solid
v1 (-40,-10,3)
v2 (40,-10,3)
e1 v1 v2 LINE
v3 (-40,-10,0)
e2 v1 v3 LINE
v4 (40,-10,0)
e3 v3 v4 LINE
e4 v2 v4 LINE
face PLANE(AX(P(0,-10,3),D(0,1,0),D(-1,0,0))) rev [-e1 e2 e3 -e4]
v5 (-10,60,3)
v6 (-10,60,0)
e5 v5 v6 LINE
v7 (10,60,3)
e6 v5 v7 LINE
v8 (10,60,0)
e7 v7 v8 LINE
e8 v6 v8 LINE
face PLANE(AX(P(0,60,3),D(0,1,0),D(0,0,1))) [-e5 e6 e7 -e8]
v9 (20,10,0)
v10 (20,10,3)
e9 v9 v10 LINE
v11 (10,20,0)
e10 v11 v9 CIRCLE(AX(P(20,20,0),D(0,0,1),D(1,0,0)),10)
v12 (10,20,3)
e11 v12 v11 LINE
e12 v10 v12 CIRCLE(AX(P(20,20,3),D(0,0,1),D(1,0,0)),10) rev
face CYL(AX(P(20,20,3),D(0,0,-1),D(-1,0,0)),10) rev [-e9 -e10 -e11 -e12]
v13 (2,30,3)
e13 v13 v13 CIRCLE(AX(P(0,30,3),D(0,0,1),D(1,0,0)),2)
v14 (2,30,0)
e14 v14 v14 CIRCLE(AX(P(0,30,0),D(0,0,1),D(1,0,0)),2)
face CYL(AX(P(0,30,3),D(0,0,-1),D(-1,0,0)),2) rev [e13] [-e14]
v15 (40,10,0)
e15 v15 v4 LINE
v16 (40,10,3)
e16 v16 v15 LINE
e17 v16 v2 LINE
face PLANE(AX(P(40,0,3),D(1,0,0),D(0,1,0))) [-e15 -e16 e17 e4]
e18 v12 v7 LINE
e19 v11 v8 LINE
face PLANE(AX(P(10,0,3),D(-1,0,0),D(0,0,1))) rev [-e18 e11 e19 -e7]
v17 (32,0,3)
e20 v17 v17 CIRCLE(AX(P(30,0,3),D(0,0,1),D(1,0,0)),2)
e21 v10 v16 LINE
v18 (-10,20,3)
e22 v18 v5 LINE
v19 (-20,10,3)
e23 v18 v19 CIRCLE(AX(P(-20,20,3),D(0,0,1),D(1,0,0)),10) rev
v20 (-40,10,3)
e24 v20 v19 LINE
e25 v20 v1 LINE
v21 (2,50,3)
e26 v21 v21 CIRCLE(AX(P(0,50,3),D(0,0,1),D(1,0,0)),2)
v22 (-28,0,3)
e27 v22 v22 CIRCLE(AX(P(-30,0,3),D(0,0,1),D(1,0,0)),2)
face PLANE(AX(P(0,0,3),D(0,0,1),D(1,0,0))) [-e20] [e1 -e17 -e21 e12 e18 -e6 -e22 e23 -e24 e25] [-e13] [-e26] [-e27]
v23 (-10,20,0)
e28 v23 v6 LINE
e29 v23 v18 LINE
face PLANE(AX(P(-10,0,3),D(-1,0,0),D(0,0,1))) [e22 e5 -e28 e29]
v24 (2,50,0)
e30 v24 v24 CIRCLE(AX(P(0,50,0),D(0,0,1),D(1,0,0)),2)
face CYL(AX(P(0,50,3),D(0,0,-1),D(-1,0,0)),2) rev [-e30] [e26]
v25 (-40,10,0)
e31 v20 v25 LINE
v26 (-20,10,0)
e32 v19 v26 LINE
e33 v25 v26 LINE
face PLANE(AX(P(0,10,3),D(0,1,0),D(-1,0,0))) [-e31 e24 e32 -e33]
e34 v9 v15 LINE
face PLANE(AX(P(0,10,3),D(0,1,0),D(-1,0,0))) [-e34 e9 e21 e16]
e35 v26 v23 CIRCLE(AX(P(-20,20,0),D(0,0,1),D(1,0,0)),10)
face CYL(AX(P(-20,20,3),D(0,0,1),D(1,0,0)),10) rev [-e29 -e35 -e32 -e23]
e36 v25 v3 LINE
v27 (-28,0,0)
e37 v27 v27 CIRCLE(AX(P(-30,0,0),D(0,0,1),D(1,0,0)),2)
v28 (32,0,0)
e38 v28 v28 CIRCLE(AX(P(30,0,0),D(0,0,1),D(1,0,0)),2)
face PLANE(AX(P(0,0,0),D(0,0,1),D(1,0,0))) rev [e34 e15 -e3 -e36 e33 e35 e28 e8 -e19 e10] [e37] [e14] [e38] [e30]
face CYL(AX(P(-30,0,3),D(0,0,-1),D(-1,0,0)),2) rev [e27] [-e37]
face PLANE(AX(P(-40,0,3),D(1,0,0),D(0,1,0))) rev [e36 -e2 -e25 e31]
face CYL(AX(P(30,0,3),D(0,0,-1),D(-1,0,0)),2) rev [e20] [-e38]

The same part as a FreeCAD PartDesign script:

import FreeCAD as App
import Part
import Sketcher

V = App.Vector


def edges_at(feature, points):
    """Names of the edges that pass closest to the given points."""
    edges = feature.Shape.Edges
    near = lambda p: min(range(len(edges)), key=lambda i: edges[i].distToShape(Part.Vertex(*p))[0])
    return sorted({f"Edge{near(p) + 1}" for p in points})


def add_polygon(sketch, points):
    """Adds a closed chain of lines whose ends are joined by coincident constraints."""
    first, n = sketch.GeometryCount, len(points)
    for a, b in zip(points, points[1:] + points[:1]):
        sketch.addGeometry(Part.LineSegment(App.Vector(*a, 0), App.Vector(*b, 0)), False)
    for i in range(n):
        sketch.addConstraint(Sketcher.Constraint("Coincident", first + i, 2, first + (i + 1) % n, 1))

doc = App.newDocument("Part")
body = doc.addObject("PartDesign::Body", "Body")

# Sketch on XY plane
sketch1 = body.newObject("Sketcher::SketchObject", "Sketch")
sketch1.AttachmentSupport = (doc.getObject("XY_Plane"), [""])
sketch1.MapMode = "FlatFace"
add_polygon(sketch1, [(-10, 60), (-10, 10), (-40, 10), (-40, -10), (40, -10), (40, 10), (10, 10), (10, 60)])  # lines 0-7
sketch1.addGeometry(Part.Circle(V(0, 30, 0), V(0, 0, 1), 2), False)  # 8
sketch1.addGeometry(Part.Circle(V(0, 50, 0), V(0, 0, 1), 2), False)  # 9
sketch1.addGeometry(Part.Circle(V(30, 0, 0), V(0, 0, 1), 2), False)  # 10
sketch1.addGeometry(Part.Circle(V(-30, 0, 0), V(0, 0, 1), 2), False)  # 11
sketch1.addConstraint([
    Sketcher.Constraint("Vertical", 0),
    Sketcher.Constraint("Horizontal", 1),
    Sketcher.Constraint("Vertical", 2),
    Sketcher.Constraint("Horizontal", 3),
    Sketcher.Constraint("Vertical", 4),
    Sketcher.Constraint("Horizontal", 5),
    Sketcher.Constraint("Vertical", 6),
    Sketcher.Constraint("Horizontal", 7),
    Sketcher.Constraint("Equal", 8, 9),
    Sketcher.Constraint("Equal", 9, 10),
    Sketcher.Constraint("Equal", 10, 11),
    Sketcher.Constraint("Symmetric", 10, 3, 11, 3, -1, 1),
    Sketcher.Constraint("Symmetric", 1, 2, 3, 2, -1, 1),
    Sketcher.Constraint("Symmetric", 0, 2, 5, 2, -2),
    Sketcher.Constraint("PointOnObject", 8, 3, -2),
    Sketcher.Constraint("PointOnObject", 9, 3, -2),
    Sketcher.Constraint("PointOnObject", 10, 3, -1),
    Sketcher.Constraint("Equal", 7, 2),
    Sketcher.Constraint("Diameter", 8, 4.0),
    Sketcher.Constraint("DistanceX", 1, 2, 1, 1, 30.0),
    Sketcher.Constraint("DistanceX", 3, 1, 3, 2, 80.0),
    Sketcher.Constraint("DistanceY", 0, 2, 0, 1, 50.0),
    Sketcher.Constraint("DistanceY", -1, 1, 8, 3, 30.0),
    Sketcher.Constraint("DistanceY", -1, 1, 9, 3, 50.0),
    Sketcher.Constraint("DistanceX", -1, 1, 10, 3, 30.0),
])
pad1 = body.newObject("PartDesign::Pad", "Pad")
pad1.Profile = sketch1
pad1.Length = 3
doc.recompute()

fillet = body.newObject("PartDesign::Fillet", "Fillet")
fillet.Base = (pad1, edges_at(pad1, [(10, 10, 1.5), (-10, 10, 1.5)]))
fillet.Radius = 10

doc.recompute()
